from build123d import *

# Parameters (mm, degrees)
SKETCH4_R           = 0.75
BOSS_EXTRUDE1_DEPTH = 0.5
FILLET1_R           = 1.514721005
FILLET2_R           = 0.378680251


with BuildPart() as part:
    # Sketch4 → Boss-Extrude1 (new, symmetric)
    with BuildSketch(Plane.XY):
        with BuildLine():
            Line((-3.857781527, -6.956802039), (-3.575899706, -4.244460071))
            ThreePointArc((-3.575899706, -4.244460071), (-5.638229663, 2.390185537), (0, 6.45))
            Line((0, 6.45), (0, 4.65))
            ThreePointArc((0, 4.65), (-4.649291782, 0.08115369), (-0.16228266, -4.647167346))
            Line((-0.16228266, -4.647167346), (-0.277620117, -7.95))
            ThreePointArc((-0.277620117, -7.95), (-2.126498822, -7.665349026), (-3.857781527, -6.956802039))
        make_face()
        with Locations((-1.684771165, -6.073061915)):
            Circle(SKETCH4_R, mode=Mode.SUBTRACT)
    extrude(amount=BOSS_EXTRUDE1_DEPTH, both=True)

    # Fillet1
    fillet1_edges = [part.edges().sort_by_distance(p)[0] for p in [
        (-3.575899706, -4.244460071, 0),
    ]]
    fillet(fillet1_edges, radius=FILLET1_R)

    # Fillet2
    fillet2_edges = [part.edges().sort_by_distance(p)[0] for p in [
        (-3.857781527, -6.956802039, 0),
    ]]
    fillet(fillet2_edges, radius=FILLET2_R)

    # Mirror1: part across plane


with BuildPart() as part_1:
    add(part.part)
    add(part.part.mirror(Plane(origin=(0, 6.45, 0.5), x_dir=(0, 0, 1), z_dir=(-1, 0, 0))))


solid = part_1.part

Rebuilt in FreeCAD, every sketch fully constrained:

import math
import FreeCAD as App
import Part
import Sketcher

V = App.Vector
Q = App.Units.Quantity


def edges_at(feature, points):
    """Names of the edges that pass closest to the given points."""
    edges = feature.Shape.Edges
    near = lambda p: min(range(len(edges)), key=lambda i: edges[i].distToShape(Part.Vertex(*p))[0])
    return sorted({f"Edge{near(p) + 1}" for p in points})

doc = App.newDocument("Part")
body = doc.addObject("PartDesign::Body", "Body")

sketch1 = body.newObject("Sketcher::SketchObject", "Sketch")
sketch1.AttachmentSupport = (doc.getObject("XY_Plane"), [""])
sketch1.MapMode = "FlatFace"
sketch1.addGeometry([
    Part.LineSegment(V(-3.6, -4.2, 0), V(-3.9, -7, 0)),
    Part.ArcOfCircle(Part.Circle(V(0, 0, 0), V(0, 0, 1), 8), math.radians(-119), math.radians(-92)),
    Part.LineSegment(V(-0.3, -8, 0), V(-0.2, -4.6, 0)),
    Part.ArcOfCircle(Part.Circle(V(0, 0, 0), V(0, 0, 1), 4.7), math.radians(90), math.radians(268)),
    Part.LineSegment(V(0, 4.7, 0), V(0, 6.5, 0)),
    Part.ArcOfCircle(Part.Circle(V(0, 0.5, 0), V(0, 0, 1), 5.9), math.radians(90), math.radians(233)),
    Part.Circle(V(-1.7, -6.1, 0), V(0, 0, 1), 0.8),
], False)
sketch1.addConstraint([
    Sketcher.Constraint("Coincident", 0, 2, 1, 1),
    Sketcher.Constraint("Coincident", 1, 2, 2, 1),
    Sketcher.Constraint("Coincident", 2, 2, 3, 2),
    Sketcher.Constraint("Coincident", 3, 1, 4, 1),
    Sketcher.Constraint("Coincident", 4, 2, 5, 1),
    Sketcher.Constraint("Coincident", 5, 2, 0, 1),
    Sketcher.Constraint("Vertical", 4),
    Sketcher.Constraint("Coincident", 1, 3, -1, 1),
    Sketcher.Constraint("Coincident", 3, 3, -1, 1),
    Sketcher.Constraint("PointOnObject", 5, 3, -2),
    Sketcher.Constraint("PointOnObject", 3, 1, -2),
    Sketcher.Constraint("Diameter", 6, Q("1.5 mm")),
    Sketcher.Constraint("Angle", 2, Q("88 deg")),
    Sketcher.Constraint("Radius", 3, Q("4.65 mm")),
    Sketcher.Constraint("DistanceY", 4, 1, 4, 2, Q("1.8 mm")),
    Sketcher.Constraint("DistanceY", 1, 2, -1, 1, Q("7.95 mm")),
    Sketcher.Constraint("Radius", 1, Q("7.954846 mm")),
    Sketcher.Constraint("Radius", 5, Q("5.945066 mm")),
    Sketcher.Constraint("DistanceX", 5, 2, -1, 1, Q("3.5759 mm")),
    Sketcher.Constraint("DistanceX", 0, 2, 2, 2, Q("3.695499 mm")),
    Sketcher.Constraint("DistanceY", 6, 3, 5, 2, Q("1.828602 mm")),
    Sketcher.Constraint("DistanceX", 6, 3, -1, 1, Q("1.684771 mm")),
])
pad1 = body.newObject("PartDesign::Pad", "Pad")
pad1.Profile = sketch1
pad1.Length = 1
pad1.Midplane = True
doc.recompute()

fillet = body.newObject("PartDesign::Fillet", "Fillet")
fillet.Base = (pad1, edges_at(pad1, [(-3.576, -4.244, 0)]))
fillet.Radius = 1.514721
doc.recompute()

fillet2 = body.newObject("PartDesign::Fillet", "Fillet001")
fillet2.Base = (fillet, edges_at(fillet, [(-3.858, -6.957, 0)]))
fillet2.Radius = 0.37868
body2 = doc.addObject("PartDesign::Body", "Body001")
doc.recompute()

body2.BaseFeature = body
doc.recompute()

mirroring = doc.addObject("Part::Mirroring", "Mirroring")
mirroring.Source = body
mirroring.Base = V(0, 6.45, 0.5)
mirroring.Normal = V(-1, 0, 0)
body3 = doc.addObject("PartDesign::Body", "Body002")
body3.BaseFeature = mirroring
boolean = body2.newObject("PartDesign::Boolean", "Boolean")
boolean.Type = "Fuse"
boolean.addObjects([body3])
doc.recompute()
mirroring.Visibility = False

doc.recompute()
